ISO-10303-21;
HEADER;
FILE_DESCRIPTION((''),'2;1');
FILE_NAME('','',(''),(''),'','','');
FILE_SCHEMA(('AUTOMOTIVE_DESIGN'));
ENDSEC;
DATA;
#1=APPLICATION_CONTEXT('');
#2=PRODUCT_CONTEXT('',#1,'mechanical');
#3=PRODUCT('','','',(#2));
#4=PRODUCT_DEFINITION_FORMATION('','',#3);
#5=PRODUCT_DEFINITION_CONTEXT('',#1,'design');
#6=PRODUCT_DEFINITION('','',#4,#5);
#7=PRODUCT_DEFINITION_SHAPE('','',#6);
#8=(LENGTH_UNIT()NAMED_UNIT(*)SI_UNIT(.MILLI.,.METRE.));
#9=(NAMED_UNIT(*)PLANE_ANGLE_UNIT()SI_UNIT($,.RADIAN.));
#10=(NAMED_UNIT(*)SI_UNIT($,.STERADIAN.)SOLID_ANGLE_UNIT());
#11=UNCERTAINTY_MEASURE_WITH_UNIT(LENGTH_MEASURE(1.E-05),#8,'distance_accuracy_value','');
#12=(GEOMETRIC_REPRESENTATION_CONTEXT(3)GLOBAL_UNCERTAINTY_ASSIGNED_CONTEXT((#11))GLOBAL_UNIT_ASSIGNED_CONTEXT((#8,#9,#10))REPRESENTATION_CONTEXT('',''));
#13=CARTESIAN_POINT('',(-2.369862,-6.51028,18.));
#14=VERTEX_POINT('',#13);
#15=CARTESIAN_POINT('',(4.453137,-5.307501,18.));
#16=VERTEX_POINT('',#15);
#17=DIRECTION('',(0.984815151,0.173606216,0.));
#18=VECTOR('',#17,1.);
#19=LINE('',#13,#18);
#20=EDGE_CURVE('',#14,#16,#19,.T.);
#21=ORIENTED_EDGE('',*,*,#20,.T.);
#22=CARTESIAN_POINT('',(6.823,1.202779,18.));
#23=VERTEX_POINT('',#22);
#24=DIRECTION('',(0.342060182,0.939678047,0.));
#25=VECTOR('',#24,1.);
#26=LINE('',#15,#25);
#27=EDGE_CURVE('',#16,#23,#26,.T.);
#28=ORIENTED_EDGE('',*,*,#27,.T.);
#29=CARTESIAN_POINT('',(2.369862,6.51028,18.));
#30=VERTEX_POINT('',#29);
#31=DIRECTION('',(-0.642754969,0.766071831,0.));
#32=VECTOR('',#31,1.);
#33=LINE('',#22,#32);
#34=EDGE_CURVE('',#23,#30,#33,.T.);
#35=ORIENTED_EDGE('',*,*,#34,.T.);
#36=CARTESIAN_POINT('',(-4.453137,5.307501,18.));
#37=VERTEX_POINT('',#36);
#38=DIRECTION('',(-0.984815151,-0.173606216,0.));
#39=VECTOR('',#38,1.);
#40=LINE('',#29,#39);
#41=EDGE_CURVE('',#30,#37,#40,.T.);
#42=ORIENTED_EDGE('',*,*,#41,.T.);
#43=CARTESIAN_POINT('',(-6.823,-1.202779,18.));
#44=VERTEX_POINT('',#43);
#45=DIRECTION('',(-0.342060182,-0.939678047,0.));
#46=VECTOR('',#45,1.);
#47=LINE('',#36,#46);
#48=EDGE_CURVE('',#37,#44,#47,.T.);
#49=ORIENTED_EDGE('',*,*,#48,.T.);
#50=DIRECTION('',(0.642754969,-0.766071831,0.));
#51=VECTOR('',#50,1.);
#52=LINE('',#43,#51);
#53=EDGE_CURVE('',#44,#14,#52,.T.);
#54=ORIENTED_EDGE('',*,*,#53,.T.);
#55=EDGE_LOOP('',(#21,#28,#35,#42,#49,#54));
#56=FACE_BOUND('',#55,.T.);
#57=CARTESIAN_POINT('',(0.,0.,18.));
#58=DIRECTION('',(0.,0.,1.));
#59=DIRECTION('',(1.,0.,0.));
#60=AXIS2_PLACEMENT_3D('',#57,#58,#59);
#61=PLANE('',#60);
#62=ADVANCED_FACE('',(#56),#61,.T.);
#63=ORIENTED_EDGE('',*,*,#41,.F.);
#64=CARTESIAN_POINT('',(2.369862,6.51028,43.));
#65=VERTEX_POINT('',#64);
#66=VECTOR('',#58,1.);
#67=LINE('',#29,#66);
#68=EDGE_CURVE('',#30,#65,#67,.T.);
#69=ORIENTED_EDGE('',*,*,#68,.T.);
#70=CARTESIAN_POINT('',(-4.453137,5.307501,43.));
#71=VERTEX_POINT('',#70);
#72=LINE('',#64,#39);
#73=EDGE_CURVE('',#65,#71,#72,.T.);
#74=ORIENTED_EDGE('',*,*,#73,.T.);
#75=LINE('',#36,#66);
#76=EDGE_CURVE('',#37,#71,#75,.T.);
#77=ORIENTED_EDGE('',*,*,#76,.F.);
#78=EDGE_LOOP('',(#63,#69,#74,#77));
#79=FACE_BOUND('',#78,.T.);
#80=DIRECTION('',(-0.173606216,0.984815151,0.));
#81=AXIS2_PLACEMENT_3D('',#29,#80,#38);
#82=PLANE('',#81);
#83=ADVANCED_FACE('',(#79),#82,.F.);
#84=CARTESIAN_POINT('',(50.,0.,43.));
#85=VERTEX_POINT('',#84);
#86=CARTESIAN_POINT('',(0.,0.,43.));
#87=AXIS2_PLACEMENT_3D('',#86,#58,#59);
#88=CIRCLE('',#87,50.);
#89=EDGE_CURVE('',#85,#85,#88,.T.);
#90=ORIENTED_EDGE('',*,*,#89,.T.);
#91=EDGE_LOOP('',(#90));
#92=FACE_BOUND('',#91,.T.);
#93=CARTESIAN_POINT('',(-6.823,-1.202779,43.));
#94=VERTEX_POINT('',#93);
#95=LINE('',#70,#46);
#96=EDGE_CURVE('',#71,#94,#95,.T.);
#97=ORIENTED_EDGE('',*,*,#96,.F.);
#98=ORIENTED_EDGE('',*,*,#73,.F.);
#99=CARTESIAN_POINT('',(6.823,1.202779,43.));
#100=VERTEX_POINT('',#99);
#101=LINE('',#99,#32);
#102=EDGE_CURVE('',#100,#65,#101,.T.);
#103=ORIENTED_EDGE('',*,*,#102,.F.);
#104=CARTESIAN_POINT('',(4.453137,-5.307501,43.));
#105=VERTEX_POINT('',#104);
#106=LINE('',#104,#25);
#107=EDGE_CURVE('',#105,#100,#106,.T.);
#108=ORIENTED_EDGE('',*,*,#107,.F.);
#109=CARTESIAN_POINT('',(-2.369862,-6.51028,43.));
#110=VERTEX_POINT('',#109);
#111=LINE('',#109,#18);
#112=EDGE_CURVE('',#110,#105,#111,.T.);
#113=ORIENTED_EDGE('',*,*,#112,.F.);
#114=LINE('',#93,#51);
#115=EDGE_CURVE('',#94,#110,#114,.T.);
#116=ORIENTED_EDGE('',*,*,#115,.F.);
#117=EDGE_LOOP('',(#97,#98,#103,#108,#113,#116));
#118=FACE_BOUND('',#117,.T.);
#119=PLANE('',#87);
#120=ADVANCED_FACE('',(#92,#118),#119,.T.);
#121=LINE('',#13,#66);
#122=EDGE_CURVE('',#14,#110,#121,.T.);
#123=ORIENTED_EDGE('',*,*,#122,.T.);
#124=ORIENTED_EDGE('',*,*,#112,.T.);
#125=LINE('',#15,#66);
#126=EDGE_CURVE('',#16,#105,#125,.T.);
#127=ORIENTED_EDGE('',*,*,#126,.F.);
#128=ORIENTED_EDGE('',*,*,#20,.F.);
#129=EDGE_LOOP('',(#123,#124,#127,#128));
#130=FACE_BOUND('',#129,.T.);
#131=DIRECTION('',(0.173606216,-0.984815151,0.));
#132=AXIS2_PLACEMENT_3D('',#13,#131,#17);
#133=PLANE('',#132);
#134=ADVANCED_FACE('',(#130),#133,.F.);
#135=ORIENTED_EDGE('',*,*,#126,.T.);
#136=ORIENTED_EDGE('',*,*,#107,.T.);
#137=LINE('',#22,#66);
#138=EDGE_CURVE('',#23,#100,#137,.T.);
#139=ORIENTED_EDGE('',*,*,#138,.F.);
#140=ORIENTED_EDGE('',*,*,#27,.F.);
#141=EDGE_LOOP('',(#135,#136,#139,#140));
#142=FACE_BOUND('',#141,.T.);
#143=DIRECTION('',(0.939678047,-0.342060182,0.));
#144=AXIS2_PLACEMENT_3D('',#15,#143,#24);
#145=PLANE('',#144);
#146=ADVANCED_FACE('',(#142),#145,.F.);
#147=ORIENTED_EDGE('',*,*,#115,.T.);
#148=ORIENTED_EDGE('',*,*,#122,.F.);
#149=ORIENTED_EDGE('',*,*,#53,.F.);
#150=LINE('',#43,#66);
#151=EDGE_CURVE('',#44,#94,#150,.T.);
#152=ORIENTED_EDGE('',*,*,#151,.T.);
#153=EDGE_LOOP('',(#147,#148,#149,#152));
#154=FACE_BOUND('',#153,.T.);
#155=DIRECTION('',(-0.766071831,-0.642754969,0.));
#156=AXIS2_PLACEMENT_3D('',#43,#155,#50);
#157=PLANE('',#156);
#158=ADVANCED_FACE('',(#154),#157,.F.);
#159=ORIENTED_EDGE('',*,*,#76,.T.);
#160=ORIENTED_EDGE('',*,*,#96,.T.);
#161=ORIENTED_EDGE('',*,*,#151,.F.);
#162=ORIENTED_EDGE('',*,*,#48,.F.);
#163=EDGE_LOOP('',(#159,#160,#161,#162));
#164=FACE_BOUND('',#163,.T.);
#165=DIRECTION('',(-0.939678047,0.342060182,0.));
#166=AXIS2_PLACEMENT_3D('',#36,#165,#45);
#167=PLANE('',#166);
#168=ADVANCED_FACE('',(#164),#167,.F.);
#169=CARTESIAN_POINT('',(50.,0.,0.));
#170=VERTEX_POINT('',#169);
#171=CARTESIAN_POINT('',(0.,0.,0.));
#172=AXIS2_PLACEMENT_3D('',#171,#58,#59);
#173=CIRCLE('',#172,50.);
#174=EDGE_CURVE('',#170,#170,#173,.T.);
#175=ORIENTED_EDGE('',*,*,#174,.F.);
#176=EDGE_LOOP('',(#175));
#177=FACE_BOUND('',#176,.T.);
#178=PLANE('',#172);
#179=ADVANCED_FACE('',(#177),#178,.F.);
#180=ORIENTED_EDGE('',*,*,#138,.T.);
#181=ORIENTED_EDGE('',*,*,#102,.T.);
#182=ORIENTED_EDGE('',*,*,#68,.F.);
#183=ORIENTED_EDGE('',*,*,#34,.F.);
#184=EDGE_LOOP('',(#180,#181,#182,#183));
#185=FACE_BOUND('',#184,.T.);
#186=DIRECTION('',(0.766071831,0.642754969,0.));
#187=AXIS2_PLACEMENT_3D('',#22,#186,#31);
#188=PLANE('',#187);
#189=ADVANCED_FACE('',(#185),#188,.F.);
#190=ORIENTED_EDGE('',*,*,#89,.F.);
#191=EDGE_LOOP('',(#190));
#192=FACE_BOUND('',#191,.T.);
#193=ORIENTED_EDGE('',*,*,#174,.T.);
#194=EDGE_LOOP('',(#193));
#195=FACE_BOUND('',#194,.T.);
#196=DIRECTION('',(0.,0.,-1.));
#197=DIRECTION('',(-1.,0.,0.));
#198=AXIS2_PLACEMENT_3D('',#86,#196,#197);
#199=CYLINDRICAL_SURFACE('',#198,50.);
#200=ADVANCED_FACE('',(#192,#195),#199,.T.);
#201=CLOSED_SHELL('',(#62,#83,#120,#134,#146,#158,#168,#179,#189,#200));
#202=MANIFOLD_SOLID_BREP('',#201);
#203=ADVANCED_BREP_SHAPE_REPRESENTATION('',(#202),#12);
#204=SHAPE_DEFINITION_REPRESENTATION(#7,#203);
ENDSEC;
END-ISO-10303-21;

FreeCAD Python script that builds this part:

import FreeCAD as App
import Part
import Sketcher
from FreeCAD import Vector
Q = App.Units.Quantity

doc = App.newDocument("Part")
body = doc.addObject("PartDesign::Body", "Body")

# Sketch on XY plane
sketch1 = body.newObject("Sketcher::SketchObject", "Sketch")
sketch1.AttachmentSupport = (doc.getObject("XY_Plane"), [""])
sketch1.MapMode = "FlatFace"
sketch1.addGeometry(Part.Circle(Vector(0, 0, 0), Vector(0, 0, 1), 50), False)
sketch1.addConstraint(Sketcher.Constraint("Coincident", 0, 3, -1, 1))
sketch1.addConstraint(Sketcher.Constraint("Diameter", 0, Q("100 mm")))
pad1 = body.newObject("PartDesign::Pad", "Pad")
pad1.Profile = sketch1
pad1.Length = 43

# Sketch on XY plane
sketch2 = body.newObject("Sketcher::SketchObject", "Sketch001")
sketch2.AttachmentSupport = (doc.getObject("XY_Plane"), [""])
sketch2.MapMode = "FlatFace"
sketch2.AttachmentOffset = App.Placement(Vector(0, 0, 43), App.Rotation())
sketch2.addGeometry(Part.LineSegment(Vector(4.453137, -5.307501, 0), Vector(6.823, 1.202779, 0)), False)
sketch2.addGeometry(Part.LineSegment(Vector(6.823, 1.202779, 0), Vector(2.369862, 6.51028, 0)), False)
sketch2.addGeometry(Part.LineSegment(Vector(2.369862, 6.51028, 0), Vector(-4.453137, 5.307501, 0)), False)
sketch2.addGeometry(Part.LineSegment(Vector(-4.453137, 5.307501, 0), Vector(-6.823, -1.202779, 0)), False)
sketch2.addGeometry(Part.LineSegment(Vector(-6.823, -1.202779, 0), Vector(-2.369862, -6.51028, 0)), False)
sketch2.addGeometry(Part.LineSegment(Vector(-2.369862, -6.51028, 0), Vector(4.453137, -5.307501, 0)), False)
sketch2.addConstraint(Sketcher.Constraint("Coincident", 0, 2, 1, 1))
sketch2.addConstraint(Sketcher.Constraint("Coincident", 1, 2, 2, 1))
sketch2.addConstraint(Sketcher.Constraint("Coincident", 2, 2, 3, 1))
sketch2.addConstraint(Sketcher.Constraint("Coincident", 3, 2, 4, 1))
sketch2.addConstraint(Sketcher.Constraint("Coincident", 4, 2, 5, 1))
sketch2.addConstraint(Sketcher.Constraint("Coincident", 5, 2, 0, 1))
sketch2.addConstraint(Sketcher.Constraint("Symmetric", 0, 2, 3, 2, -1, 1))
sketch2.addConstraint(Sketcher.Constraint("Symmetric", 1, 2, 4, 2, -1, 1))
sketch2.addConstraint(Sketcher.Constraint("Symmetric", 2, 2, 5, 2, -1, 1))
sketch2.addConstraint(Sketcher.Constraint("Equal", 0, 1))
sketch2.addConstraint(Sketcher.Constraint("Equal", 1, 2))
sketch2.addConstraint(Sketcher.Constraint("DistanceX", -1, 1, 0, 2, Q("6.823 mm")))
sketch2.addConstraint(Sketcher.Constraint("DistanceX", 2, 2, 1, 2, Q("6.823 mm")))
sketch2.addConstraint(Sketcher.Constraint("DistanceY", -1, 1, 2, 2, Q("5.307501 mm")))
sketch2.addConstraint(Sketcher.Constraint("DistanceY", 0, 2, 1, 2, Q("5.307501 mm")))
pocket1 = body.newObject("PartDesign::Pocket", "Pocket")
pocket1.Profile = sketch2
pocket1.Length = 25

doc.recompute()
